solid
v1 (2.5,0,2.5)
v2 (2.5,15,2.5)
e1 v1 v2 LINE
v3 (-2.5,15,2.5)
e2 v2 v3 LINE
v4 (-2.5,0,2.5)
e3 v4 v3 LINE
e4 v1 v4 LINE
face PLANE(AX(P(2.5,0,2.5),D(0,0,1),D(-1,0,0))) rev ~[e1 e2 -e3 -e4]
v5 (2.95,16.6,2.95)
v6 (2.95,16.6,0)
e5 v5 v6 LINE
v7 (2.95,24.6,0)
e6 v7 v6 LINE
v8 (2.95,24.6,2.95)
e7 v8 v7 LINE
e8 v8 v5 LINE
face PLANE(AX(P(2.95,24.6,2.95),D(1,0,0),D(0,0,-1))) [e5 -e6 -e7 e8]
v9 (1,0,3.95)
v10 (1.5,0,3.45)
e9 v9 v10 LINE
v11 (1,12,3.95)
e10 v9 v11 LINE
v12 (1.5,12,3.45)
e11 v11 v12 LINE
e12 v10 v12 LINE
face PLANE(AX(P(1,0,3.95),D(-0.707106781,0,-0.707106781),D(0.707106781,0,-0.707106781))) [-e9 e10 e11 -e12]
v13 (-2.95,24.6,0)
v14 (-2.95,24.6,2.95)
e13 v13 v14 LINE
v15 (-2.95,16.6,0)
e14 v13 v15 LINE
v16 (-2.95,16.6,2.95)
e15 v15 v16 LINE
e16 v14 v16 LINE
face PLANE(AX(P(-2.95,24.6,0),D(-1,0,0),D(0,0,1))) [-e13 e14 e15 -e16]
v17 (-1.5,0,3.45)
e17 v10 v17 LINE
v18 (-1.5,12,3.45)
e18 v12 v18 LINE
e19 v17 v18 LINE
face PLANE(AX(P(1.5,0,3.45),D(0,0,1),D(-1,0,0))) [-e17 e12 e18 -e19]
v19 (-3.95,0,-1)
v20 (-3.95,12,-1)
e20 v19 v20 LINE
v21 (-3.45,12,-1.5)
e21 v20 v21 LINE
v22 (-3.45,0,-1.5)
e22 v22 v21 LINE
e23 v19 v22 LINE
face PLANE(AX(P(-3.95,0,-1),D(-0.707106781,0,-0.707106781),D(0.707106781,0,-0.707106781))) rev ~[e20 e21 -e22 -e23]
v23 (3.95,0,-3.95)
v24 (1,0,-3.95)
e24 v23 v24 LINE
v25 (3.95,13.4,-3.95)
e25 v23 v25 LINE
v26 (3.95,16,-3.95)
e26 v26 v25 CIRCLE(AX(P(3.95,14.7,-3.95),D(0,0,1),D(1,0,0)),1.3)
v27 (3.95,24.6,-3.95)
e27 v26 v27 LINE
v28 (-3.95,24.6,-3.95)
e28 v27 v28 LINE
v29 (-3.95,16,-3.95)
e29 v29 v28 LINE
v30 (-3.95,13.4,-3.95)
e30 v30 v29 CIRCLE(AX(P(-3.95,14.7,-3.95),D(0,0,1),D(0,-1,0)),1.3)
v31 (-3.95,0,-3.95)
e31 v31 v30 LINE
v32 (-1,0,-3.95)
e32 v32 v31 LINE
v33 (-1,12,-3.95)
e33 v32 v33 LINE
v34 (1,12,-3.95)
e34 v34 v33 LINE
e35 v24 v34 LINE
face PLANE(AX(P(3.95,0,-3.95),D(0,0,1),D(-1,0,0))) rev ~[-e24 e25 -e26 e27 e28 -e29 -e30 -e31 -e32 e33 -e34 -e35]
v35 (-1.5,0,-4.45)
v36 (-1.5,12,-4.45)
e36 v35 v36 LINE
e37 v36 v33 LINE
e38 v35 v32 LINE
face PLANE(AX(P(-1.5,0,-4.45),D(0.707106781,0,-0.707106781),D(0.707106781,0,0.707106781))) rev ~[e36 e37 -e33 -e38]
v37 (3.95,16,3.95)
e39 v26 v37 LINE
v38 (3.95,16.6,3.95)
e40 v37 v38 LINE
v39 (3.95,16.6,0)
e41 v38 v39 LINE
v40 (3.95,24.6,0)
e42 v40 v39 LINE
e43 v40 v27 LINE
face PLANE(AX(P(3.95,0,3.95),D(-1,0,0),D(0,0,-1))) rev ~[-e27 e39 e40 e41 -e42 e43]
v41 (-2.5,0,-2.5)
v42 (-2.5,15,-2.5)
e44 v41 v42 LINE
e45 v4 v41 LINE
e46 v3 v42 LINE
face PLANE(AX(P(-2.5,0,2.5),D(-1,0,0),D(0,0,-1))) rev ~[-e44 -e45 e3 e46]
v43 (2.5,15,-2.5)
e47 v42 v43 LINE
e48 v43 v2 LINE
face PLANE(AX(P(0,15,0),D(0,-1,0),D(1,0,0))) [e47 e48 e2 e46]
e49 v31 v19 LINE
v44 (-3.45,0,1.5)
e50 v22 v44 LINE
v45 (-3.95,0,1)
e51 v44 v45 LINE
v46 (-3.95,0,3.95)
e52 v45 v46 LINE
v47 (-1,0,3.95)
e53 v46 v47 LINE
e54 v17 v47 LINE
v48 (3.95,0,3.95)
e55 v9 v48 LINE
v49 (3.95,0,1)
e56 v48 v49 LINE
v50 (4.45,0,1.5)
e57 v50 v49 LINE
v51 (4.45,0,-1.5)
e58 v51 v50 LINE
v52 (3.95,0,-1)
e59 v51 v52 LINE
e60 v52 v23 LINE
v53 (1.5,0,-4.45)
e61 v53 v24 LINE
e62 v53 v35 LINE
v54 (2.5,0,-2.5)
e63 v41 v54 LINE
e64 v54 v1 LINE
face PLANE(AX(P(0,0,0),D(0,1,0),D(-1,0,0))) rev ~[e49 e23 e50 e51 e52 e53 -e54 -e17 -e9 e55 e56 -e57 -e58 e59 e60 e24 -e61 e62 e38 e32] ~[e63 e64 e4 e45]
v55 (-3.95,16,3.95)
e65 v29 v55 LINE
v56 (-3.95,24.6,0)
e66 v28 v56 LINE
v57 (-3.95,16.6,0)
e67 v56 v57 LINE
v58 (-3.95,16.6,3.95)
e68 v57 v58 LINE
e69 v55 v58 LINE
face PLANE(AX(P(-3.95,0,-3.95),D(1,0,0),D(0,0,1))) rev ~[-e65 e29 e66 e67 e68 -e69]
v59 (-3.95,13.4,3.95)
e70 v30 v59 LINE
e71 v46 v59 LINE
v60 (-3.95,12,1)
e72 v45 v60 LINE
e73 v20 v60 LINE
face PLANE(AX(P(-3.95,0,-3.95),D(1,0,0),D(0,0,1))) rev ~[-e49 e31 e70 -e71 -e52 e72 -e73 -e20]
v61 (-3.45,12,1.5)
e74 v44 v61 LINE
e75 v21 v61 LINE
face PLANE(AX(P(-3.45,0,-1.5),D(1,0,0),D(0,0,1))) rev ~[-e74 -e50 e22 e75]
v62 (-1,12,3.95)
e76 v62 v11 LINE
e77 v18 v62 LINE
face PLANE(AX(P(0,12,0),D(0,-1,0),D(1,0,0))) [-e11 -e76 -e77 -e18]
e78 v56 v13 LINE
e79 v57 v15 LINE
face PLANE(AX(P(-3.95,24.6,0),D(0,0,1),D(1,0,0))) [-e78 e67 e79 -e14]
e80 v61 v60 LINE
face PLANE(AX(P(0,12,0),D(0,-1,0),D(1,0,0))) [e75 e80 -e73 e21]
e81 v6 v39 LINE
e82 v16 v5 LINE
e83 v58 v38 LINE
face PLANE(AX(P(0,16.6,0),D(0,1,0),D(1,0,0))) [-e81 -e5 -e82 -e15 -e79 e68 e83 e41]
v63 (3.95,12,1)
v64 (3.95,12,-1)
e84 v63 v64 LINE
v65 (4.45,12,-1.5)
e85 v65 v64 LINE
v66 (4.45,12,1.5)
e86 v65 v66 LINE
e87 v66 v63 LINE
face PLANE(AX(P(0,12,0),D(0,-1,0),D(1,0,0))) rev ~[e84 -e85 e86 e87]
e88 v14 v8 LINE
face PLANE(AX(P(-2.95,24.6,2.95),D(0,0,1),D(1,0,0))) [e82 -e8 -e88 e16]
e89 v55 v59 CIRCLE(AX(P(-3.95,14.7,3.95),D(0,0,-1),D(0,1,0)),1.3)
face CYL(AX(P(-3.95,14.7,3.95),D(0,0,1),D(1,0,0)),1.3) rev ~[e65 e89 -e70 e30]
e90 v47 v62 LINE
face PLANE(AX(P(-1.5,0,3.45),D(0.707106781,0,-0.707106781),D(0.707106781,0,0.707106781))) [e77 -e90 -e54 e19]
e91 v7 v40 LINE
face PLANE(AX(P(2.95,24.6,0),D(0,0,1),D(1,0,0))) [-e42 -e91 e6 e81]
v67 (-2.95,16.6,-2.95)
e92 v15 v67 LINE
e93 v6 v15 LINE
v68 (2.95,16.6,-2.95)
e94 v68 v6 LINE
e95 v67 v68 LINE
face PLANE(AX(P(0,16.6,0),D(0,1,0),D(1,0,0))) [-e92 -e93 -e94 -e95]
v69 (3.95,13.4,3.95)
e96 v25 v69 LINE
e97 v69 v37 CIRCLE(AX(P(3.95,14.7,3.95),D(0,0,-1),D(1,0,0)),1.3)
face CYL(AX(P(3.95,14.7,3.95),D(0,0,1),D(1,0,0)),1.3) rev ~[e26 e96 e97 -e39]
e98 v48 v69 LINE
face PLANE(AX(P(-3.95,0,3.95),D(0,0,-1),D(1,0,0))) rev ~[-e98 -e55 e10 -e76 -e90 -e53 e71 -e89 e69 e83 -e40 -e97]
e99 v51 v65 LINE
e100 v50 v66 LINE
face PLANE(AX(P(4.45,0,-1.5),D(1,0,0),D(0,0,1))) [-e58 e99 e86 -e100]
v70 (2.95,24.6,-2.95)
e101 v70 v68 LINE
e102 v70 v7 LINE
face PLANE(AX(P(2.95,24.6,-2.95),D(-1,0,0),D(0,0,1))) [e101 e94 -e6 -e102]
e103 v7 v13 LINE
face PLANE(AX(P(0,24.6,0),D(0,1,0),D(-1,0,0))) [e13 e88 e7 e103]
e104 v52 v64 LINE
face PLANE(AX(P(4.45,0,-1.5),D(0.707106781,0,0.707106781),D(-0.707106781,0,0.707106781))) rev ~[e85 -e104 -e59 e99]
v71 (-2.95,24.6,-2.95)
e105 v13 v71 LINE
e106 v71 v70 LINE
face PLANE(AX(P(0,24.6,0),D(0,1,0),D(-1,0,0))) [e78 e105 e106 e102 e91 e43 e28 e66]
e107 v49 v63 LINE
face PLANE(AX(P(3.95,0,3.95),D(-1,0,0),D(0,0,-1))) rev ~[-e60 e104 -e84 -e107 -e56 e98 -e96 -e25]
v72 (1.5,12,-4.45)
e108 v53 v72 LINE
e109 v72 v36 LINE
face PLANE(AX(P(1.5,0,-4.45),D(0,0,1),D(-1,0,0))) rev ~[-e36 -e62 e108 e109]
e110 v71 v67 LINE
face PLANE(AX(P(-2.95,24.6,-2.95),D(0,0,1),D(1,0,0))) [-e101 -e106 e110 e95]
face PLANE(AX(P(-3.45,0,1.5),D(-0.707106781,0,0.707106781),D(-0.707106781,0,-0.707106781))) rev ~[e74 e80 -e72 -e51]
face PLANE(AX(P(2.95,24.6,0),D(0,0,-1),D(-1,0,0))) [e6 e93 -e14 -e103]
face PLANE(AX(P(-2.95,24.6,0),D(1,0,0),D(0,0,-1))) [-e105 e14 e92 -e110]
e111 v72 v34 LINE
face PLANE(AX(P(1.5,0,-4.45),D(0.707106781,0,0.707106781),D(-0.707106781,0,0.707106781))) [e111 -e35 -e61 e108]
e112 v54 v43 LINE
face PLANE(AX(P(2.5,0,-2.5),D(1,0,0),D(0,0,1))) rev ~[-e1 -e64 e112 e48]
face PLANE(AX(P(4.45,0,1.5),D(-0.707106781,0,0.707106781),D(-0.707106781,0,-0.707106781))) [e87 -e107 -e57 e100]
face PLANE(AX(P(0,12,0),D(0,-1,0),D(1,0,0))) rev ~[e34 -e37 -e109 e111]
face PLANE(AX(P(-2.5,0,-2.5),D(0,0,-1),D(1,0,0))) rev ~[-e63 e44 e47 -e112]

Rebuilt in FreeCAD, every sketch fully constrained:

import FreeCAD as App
import Part
import Sketcher
from FreeCAD import Vector


def add_polygon(sketch, points):
    """Adds a closed chain of lines whose ends are joined by coincident constraints."""
    first, n = sketch.GeometryCount, len(points)
    for a, b in zip(points, points[1:] + points[:1]):
        sketch.addGeometry(Part.LineSegment(App.Vector(*a, 0), App.Vector(*b, 0)), False)
    for i in range(n):
        sketch.addConstraint(Sketcher.Constraint("Coincident", first + i, 2, first + (i + 1) % n, 1))

doc = App.newDocument("Part")
body = doc.addObject("PartDesign::Body", "Body")

sketch1 = body.newObject("Sketcher::SketchObject", "Sketch")
sketch1.AttachmentSupport = (doc.getObject("XZ_Plane"), [""])
sketch1.MapMode = "FlatFace"
add_polygon(sketch1, [(3.95, 3.95), (3.95, -3.95), (-3.95, -3.95), (-3.95, 3.95)])
sketch1.addConstraint(Sketcher.Constraint("Vertical", 0))
sketch1.addConstraint(Sketcher.Constraint("Horizontal", 1))
sketch1.addConstraint(Sketcher.Constraint("Vertical", 2))
sketch1.addConstraint(Sketcher.Constraint("Horizontal", 3))
sketch1.addConstraint(Sketcher.Constraint("Symmetric", 0, 2, 2, 2, -1, 1))
sketch1.addConstraint(Sketcher.Constraint("Equal", 3, 0))
sketch1.addConstraint(Sketcher.Constraint("DistanceX", 1, 2, 1, 1, 7.9))
pad1 = body.newObject("PartDesign::Pad", "Pad")
pad1.Profile = sketch1
pad1.Length = 24.6
pad1.Reversed = True

sketch2 = body.newObject("Sketcher::SketchObject", "Sketch001")
sketch2.AttachmentSupport = (doc.getObject("XY_Plane"), [""])
sketch2.MapMode = "FlatFace"
sketch2.AttachmentOffset = App.Placement(Vector(0, 0, 3.95), App.Rotation())
sketch2.addGeometry(Part.Circle(Vector(3.95, 14.7, 0), Vector(0, 0, 1), 1.3), False)
sketch2.addGeometry(Part.Circle(Vector(-3.95, 14.7, 0), Vector(0, 0, 1), 1.3), False)
sketch2.addConstraint(Sketcher.Constraint("Equal", 0, 1))
sketch2.addConstraint(Sketcher.Constraint("Symmetric", 0, 3, 1, 3, -2))
sketch2.addConstraint(Sketcher.Constraint("Diameter", 0, 2.6))
sketch2.addConstraint(Sketcher.Constraint("DistanceY", -1, 1, 0, 3, 14.7))
sketch2.addConstraint(Sketcher.Constraint("DistanceX", 1, 3, 0, 3, 7.9))
pocket1 = body.newObject("PartDesign::Pocket", "Pocket")
pocket1.Profile = sketch2
pocket1.Type = "ThroughAll"

sketch3 = body.newObject("Sketcher::SketchObject", "Sketch002")
sketch3.AttachmentSupport = (doc.getObject("XZ_Plane"), [""])
sketch3.MapMode = "FlatFace"
add_polygon(sketch3, [(-2.5, 2.5), (-2.5, -2.5), (2.5, -2.5), (2.5, 2.5)])
sketch3.addConstraint(Sketcher.Constraint("Vertical", 0))
sketch3.addConstraint(Sketcher.Constraint("Horizontal", 1))
sketch3.addConstraint(Sketcher.Constraint("Vertical", 2))
sketch3.addConstraint(Sketcher.Constraint("Horizontal", 3))
sketch3.addConstraint(Sketcher.Constraint("Symmetric", 0, 2, 2, 2, -1, 1))
sketch3.addConstraint(Sketcher.Constraint("Equal", 3, 0))
sketch3.addConstraint(Sketcher.Constraint("DistanceX", 1, 1, 1, 2, 5.0))
pocket2 = body.newObject("PartDesign::Pocket", "Pocket001")
pocket2.Profile = sketch3
pocket2.Length = 15

sketch4 = body.newObject("Sketcher::SketchObject", "Sketch003")
sketch4.AttachmentSupport = (doc.getObject("XZ_Plane"), [""])
sketch4.MapMode = "FlatFace"
sketch4.AttachmentOffset = App.Placement(Vector(0, 0, -24.6), App.Rotation())
add_polygon(sketch4, [(-2.95, 0), (-3.95, 0), (-3.95, 3.95), (3.95, 3.95), (3.95, 0), (2.95, 0), (2.95, 2.95), (-2.95, 2.95)])
sketch4.addConstraint(Sketcher.Constraint("Horizontal", 0))
sketch4.addConstraint(Sketcher.Constraint("Vertical", 1))
sketch4.addConstraint(Sketcher.Constraint("Horizontal", 2))
sketch4.addConstraint(Sketcher.Constraint("Vertical", 3))
sketch4.addConstraint(Sketcher.Constraint("Horizontal", 4))
sketch4.addConstraint(Sketcher.Constraint("Vertical", 5))
sketch4.addConstraint(Sketcher.Constraint("Horizontal", 6))
sketch4.addConstraint(Sketcher.Constraint("Vertical", 7))
sketch4.addConstraint(Sketcher.Constraint("Symmetric", 0, 2, 3, 2, -1, 1))
sketch4.addConstraint(Sketcher.Constraint("Symmetric", 4, 2, 7, 2, -2))
sketch4.addConstraint(Sketcher.Constraint("DistanceX", 0, 2, 0, 1, 1.0))
sketch4.addConstraint(Sketcher.Constraint("DistanceY", 5, 2, 2, 2, 1.0))
sketch4.addConstraint(Sketcher.Constraint("DistanceX", 2, 1, 2, 2, 7.9))
sketch4.addConstraint(Sketcher.Constraint("DistanceY", 1, 1, 1, 2, 3.95))
pocket3 = body.newObject("PartDesign::Pocket", "Pocket002")
pocket3.Profile = sketch4
pocket3.Length = 8
pocket3.Reversed = True

sketch5 = body.newObject("Sketcher::SketchObject", "Sketch004")
sketch5.AttachmentSupport = (doc.getObject("XZ_Plane"), [""])
sketch5.MapMode = "FlatFace"
sketch5.AttachmentOffset = App.Placement(Vector(0, 0, -24.6), App.Rotation())
add_polygon(sketch5, [(2.95, -2.95), (-2.95, -2.95), (-2.95, 0), (2.95, 0)])
sketch5.addConstraint(Sketcher.Constraint("Horizontal", 0))
sketch5.addConstraint(Sketcher.Constraint("Vertical", 1))
sketch5.addConstraint(Sketcher.Constraint("Horizontal", 2))
sketch5.addConstraint(Sketcher.Constraint("Vertical", 3))
sketch5.addConstraint(Sketcher.Constraint("Symmetric", 1, 2, 2, 2, -1, 1))
sketch5.addConstraint(Sketcher.Constraint("DistanceX", 0, 2, 0, 1, 5.9))
sketch5.addConstraint(Sketcher.Constraint("DistanceY", 1, 1, 1, 2, 2.95))
pocket4 = body.newObject("PartDesign::Pocket", "Pocket003")
pocket4.Profile = sketch5
pocket4.Length = 8
pocket4.Reversed = True

sketch6 = body.newObject("Sketcher::SketchObject", "Sketch005")
sketch6.AttachmentSupport = (doc.getObject("XZ_Plane"), [""])
sketch6.MapMode = "FlatFace"
add_polygon(sketch6, [(1.5, -4.45), (1, -3.95), (-1, -3.95), (-1.5, -4.45)])
add_polygon(sketch6, [(3.95, 1), (3.95, -1), (4.45, -1.5), (4.45, 1.5)])
sketch6.addConstraint(Sketcher.Constraint("Horizontal", 1))
sketch6.addConstraint(Sketcher.Constraint("Horizontal", 3))
sketch6.addConstraint(Sketcher.Constraint("Vertical", 4))
sketch6.addConstraint(Sketcher.Constraint("Vertical", 6))
sketch6.addConstraint(Sketcher.Constraint("Perpendicular", 0, 2))
sketch6.addConstraint(Sketcher.Constraint("Perpendicular", 2, 5))
sketch6.addConstraint(Sketcher.Constraint("Perpendicular", 5, 7))
sketch6.addConstraint(Sketcher.Constraint("Equal", 1, 4))
sketch6.addConstraint(Sketcher.Constraint("Equal", 3, 6))
sketch6.addConstraint(Sketcher.Constraint("Equal", 0, 2))
sketch6.addConstraint(Sketcher.Constraint("DistanceX", 3, 1, 3, 2, 3.0))
sketch6.addConstraint(Sketcher.Constraint("DistanceX", 2, 2, -1, 1, 1.5))
sketch6.addConstraint(Sketcher.Constraint("DistanceY", 5, 2, -1, 1, 1.5))
sketch6.addConstraint(Sketcher.Constraint("DistanceX", 2, 2, 1, 2, 0.5))
sketch6.addConstraint(Sketcher.Constraint("DistanceY", 0, 2, -1, 1, 3.95))
sketch6.addConstraint(Sketcher.Constraint("DistanceX", -1, 1, 4, 2, 3.95))
pad2 = body.newObject("PartDesign::Pad", "Pad001")
pad2.Profile = sketch6
pad2.Length = 12
pad2.Reversed = True

sketch7 = body.newObject("Sketcher::SketchObject", "Sketch006")
sketch7.AttachmentSupport = (doc.getObject("XZ_Plane"), [""])
sketch7.MapMode = "FlatFace"
add_polygon(sketch7, [(-3.95, 1), (-3.95, -1), (-3.45, -1.5), (-3.45, 1.5)])
add_polygon(sketch7, [(1.5, 3.45), (1, 3.95), (-1, 3.95), (-1.5, 3.45)])
sketch7.addConstraint(Sketcher.Constraint("Vertical", 0))
sketch7.addConstraint(Sketcher.Constraint("Vertical", 2))
sketch7.addConstraint(Sketcher.Constraint("Horizontal", 5))
sketch7.addConstraint(Sketcher.Constraint("Horizontal", 7))
sketch7.addConstraint(Sketcher.Constraint("Perpendicular", 1, 3))
sketch7.addConstraint(Sketcher.Constraint("Perpendicular", 3, 4))
sketch7.addConstraint(Sketcher.Constraint("Perpendicular", 4, 6))
sketch7.addConstraint(Sketcher.Constraint("Equal", 5, 0))
sketch7.addConstraint(Sketcher.Constraint("Equal", 7, 2))
sketch7.addConstraint(Sketcher.Constraint("Equal", 1, 3))
sketch7.addConstraint(Sketcher.Constraint("DistanceX", 7, 1, 7, 2, 3.0))
sketch7.addConstraint(Sketcher.Constraint("DistanceY", 1, 2, -1, 1, 1.5))
sketch7.addConstraint(Sketcher.Constraint("DistanceX", 6, 2, -1, 1, 1.5))
sketch7.addConstraint(Sketcher.Constraint("DistanceX", 0, 2, 1, 2, 0.5))
sketch7.addConstraint(Sketcher.Constraint("DistanceX", 0, 2, -1, 1, 3.95))
sketch7.addConstraint(Sketcher.Constraint("DistanceY", -1, 1, 4, 2, 3.95))
pocket5 = body.newObject("PartDesign::Pocket", "Pocket004")
pocket5.Profile = sketch7
pocket5.Length = 12

doc.recompute()
